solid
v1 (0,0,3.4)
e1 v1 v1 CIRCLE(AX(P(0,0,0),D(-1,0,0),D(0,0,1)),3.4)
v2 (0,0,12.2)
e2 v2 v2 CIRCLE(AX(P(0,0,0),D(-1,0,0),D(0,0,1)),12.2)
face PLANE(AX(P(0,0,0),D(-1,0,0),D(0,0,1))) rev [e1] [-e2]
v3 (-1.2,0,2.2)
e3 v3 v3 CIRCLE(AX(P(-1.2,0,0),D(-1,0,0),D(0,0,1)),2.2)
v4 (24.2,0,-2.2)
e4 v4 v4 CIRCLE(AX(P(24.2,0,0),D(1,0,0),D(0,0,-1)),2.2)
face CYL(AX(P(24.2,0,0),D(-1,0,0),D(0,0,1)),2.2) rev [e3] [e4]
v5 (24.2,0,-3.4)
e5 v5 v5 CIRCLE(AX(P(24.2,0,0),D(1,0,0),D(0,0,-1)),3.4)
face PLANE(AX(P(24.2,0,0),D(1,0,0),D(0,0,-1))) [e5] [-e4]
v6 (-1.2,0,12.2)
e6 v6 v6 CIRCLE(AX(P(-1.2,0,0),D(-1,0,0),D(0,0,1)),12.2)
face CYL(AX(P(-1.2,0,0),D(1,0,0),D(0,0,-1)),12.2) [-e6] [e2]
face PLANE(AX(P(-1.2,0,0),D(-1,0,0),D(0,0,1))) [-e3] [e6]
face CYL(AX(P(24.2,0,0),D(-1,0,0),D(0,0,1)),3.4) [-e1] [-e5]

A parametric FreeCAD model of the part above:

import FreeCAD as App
import Part
import Sketcher
Q = App.Units.Quantity

doc = App.newDocument("Part")
body = doc.addObject("PartDesign::Body", "Body")

sketch1 = body.newObject("Sketcher::SketchObject", "Sketch")
sketch1.AttachmentSupport = (doc.getObject("YZ_Plane"), [""])
sketch1.MapMode = "FlatFace"
sketch1.addGeometry(Part.Circle(App.Vector(0, 0, 0), App.Vector(0, 0, 1), 3.4), False)
sketch1.addGeometry(Part.Circle(App.Vector(0, 0, 0), App.Vector(0, 0, 1), 2.2), False)
sketch1.addConstraint(Sketcher.Constraint("Coincident", 0, 3, -1, 1))
sketch1.addConstraint(Sketcher.Constraint("Coincident", 1, 3, -1, 1))
sketch1.addConstraint(Sketcher.Constraint("Diameter", 0, Q("6.8 mm")))
sketch1.addConstraint(Sketcher.Constraint("Diameter", 1, Q("4.4 mm")))
pad1 = body.newObject("PartDesign::Pad", "Pad")
pad1.Profile = sketch1
pad1.Length = 24.2

sketch2 = body.newObject("Sketcher::SketchObject", "Sketch001")
sketch2.AttachmentSupport = (doc.getObject("YZ_Plane"), [""])
sketch2.MapMode = "FlatFace"
sketch2.AttachmentOffset = App.Placement(App.Vector(0, 0, -1.2), App.Rotation())
sketch2.addGeometry(Part.Circle(App.Vector(0, 0, 0), App.Vector(0, 0, 1), 12.2), False)
sketch2.addGeometry(Part.Circle(App.Vector(0, 0, 0), App.Vector(0, 0, 1), 2.2), False)
sketch2.addConstraint(Sketcher.Constraint("Coincident", 0, 3, -1, 1))
sketch2.addConstraint(Sketcher.Constraint("Coincident", 1, 3, -1, 1))
sketch2.addConstraint(Sketcher.Constraint("Diameter", 0, Q("24.4 mm")))
sketch2.addConstraint(Sketcher.Constraint("Diameter", 1, Q("4.4 mm")))
pad2 = body.newObject("PartDesign::Pad", "Pad001")
pad2.Profile = sketch2
pad2.Length = 1.2

doc.recompute()
